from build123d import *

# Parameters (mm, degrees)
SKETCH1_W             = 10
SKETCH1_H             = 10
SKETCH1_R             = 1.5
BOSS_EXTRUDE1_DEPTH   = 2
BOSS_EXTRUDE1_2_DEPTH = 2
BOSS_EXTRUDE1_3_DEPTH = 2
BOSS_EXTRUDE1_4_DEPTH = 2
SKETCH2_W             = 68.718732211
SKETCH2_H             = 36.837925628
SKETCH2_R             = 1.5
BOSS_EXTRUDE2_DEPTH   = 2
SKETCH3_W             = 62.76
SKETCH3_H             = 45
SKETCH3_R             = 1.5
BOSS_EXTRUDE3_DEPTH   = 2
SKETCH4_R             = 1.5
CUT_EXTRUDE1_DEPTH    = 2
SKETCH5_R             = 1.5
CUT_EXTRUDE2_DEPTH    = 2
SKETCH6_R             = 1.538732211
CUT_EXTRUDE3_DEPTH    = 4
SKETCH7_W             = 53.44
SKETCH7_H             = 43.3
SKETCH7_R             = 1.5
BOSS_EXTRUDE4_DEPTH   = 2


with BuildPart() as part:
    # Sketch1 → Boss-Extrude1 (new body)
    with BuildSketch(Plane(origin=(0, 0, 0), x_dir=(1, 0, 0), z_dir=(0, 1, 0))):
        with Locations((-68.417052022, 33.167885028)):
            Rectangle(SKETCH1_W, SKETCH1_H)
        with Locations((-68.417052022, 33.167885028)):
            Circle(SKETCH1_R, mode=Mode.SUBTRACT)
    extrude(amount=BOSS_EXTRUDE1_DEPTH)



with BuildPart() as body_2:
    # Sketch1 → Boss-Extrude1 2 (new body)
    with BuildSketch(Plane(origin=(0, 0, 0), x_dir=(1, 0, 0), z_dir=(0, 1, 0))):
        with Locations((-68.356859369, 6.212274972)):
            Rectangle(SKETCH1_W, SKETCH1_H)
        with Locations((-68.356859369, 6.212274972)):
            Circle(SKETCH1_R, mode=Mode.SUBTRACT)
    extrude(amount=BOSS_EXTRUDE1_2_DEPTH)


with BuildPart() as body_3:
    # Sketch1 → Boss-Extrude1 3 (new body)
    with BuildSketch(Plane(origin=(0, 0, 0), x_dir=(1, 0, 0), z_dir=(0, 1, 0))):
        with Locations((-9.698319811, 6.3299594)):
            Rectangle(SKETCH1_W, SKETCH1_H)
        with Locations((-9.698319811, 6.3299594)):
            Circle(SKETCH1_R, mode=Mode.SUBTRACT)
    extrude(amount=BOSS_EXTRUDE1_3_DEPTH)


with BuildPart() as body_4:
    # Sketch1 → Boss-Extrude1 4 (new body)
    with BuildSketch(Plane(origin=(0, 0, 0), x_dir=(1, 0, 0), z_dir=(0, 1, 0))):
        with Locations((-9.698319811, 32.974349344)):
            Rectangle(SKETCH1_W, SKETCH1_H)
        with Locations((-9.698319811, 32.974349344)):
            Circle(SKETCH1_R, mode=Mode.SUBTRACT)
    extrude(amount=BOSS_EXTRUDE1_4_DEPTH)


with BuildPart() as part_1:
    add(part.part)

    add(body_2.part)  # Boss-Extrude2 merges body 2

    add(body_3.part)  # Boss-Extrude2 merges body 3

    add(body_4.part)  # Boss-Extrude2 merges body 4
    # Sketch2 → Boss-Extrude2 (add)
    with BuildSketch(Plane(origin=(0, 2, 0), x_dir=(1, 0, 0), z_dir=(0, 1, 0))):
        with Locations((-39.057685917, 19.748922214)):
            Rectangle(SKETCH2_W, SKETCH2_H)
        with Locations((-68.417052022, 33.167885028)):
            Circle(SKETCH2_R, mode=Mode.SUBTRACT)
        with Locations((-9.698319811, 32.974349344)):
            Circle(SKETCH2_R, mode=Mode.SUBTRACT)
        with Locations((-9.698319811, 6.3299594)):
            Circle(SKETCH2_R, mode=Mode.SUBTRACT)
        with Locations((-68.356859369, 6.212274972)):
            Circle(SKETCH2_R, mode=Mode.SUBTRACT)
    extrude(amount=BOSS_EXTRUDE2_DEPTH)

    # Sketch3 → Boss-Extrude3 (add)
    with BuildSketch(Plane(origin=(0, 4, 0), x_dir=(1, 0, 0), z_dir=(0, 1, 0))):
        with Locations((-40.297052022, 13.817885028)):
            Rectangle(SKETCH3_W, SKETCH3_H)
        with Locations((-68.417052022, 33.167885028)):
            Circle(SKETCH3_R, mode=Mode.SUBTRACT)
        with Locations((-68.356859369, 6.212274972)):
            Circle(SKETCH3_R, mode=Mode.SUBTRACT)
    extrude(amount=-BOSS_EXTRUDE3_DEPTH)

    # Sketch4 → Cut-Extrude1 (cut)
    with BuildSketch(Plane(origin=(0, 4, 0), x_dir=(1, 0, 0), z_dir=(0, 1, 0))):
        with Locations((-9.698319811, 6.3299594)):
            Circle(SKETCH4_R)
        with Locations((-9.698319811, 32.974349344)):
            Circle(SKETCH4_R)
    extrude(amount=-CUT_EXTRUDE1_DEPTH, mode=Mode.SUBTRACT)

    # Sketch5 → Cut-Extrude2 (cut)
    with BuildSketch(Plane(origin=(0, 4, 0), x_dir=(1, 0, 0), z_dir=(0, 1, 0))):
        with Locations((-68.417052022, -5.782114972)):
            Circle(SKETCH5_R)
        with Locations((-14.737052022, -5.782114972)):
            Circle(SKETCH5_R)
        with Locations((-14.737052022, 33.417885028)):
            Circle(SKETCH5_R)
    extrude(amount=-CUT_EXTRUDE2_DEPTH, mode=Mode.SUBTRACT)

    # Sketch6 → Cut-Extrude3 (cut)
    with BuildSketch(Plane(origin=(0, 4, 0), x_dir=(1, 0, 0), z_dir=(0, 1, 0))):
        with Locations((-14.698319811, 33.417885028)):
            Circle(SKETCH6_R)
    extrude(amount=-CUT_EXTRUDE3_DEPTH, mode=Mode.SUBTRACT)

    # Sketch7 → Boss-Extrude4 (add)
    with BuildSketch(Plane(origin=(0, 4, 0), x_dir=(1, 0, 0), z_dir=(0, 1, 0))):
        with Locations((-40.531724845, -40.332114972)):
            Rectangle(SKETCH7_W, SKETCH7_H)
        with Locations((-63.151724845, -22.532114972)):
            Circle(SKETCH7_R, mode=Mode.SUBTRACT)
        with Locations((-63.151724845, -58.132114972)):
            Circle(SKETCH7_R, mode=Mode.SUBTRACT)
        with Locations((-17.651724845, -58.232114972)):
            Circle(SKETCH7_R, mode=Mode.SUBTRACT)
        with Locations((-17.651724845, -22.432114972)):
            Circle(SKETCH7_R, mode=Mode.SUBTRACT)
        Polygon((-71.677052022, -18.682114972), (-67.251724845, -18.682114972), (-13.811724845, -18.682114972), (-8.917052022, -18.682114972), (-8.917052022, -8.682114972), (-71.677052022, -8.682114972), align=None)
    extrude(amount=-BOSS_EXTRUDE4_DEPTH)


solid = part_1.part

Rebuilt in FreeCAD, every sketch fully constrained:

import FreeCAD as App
import Part
import Sketcher
Q = App.Units.Quantity


def add_polygon(sketch, points):
    """Adds a closed chain of lines whose ends are joined by coincident constraints."""
    first, n = sketch.GeometryCount, len(points)
    for a, b in zip(points, points[1:] + points[:1]):
        sketch.addGeometry(Part.LineSegment(App.Vector(*a, 0), App.Vector(*b, 0)), False)
    for i in range(n):
        sketch.addConstraint(Sketcher.Constraint("Coincident", first + i, 2, first + (i + 1) % n, 1))

doc = App.newDocument("Part")
params = doc.addObject("Spreadsheet::Sheet", "Params")
for row, (alias, value) in enumerate([
    ("sketch1_diameter", "3 mm"),
    ("sketch1_width", "10 mm"),
    ("pad1_length", "2 mm"),
    ("sketch2_diameter", "3 mm"),
    ("sketch2_width", "10 mm"),
    ("pad2_length", "2 mm"),
    ("sketch3_diameter", "3 mm"),
    ("sketch3_width", "10 mm"),
    ("pad3_length", "2 mm"),
    ("sketch4_diameter", "3 mm"),
    ("sketch4_width", "10 mm"),
    ("pad4_length", "2 mm"),
    ("sketch5_diameter", "3 mm"),
    ("pad5_length", "2 mm"),
    ("sketch6_diameter", "3 mm"),
    ("sketch6_height", "45 mm"),
    ("sketch6_width", "62.76 mm"),
    ("pad6_length", "2 mm"),
    ("sketch7_diameter", "3 mm"),
    ("pocket1_length", "2 mm"),
    ("sketch8_diameter", "3 mm"),
    ("pocket2_length", "2 mm"),
    ("pocket3_length", "4 mm"),
    ("sketch10_diameter", "3 mm"),
    ("sketch10_height", "10 mm"),
    ("sketch10_height2", "43.3 mm"),
    ("sketch10_width", "53.44 mm"),
    ("sketch10_width2", "62.76 mm"),
    ("pad7_length", "2 mm"),
], start=1):
    params.set(f"A{row}", alias)
    params.set(f"B{row}", "=" + value)
    params.setAlias(f"B{row}", alias)

body = doc.addObject("PartDesign::Body", "Body")

sketch1 = doc.addObject("Sketcher::SketchObject", "Sketch")
body.addObject(sketch1)
sketch1.AttachmentSupport = (doc.XZ_Plane, [""])
sketch1.MapMode = "FlatFace"
add_polygon(sketch1, [(-73.4, -38.2), (-73.4, -28.2), (-63.4, -28.2), (-63.4, -38.2)])
sketch1.addGeometry(Part.Circle(App.Vector(-68.4, -33.2, 0), App.Vector(0, 0, 1), 1.5), False)
sketch1.addConstraint(Sketcher.Constraint("Vertical", 0))
sketch1.addConstraint(Sketcher.Constraint("Horizontal", 1))
sketch1.addConstraint(Sketcher.Constraint("Vertical", 2))
sketch1.addConstraint(Sketcher.Constraint("Horizontal", 3))
sketch1.addConstraint(Sketcher.Constraint("Equal", 3, 0))
sketch1.addConstraint(Sketcher.Constraint("Diameter", 4, Q("3 mm")))
sketch1.addConstraint(Sketcher.Constraint("DistanceX", 1, 1, 1, 2, Q("10 mm")))
sketch1.addConstraint(Sketcher.Constraint("DistanceX", 0, 2, 4, 3, Q("5 mm")))
sketch1.addConstraint(Sketcher.Constraint("DistanceY", 4, 3, 0, 2, Q("5 mm")))
sketch1.addConstraint(Sketcher.Constraint("DistanceX", 4, 3, -1, 1, Q("68.417052 mm")))
sketch1.addConstraint(Sketcher.Constraint("DistanceY", 4, 3, -1, 1, Q("33.167885 mm")))
sketch1.setExpression("Constraints[9]", "Params.sketch1_diameter")
sketch1.setExpression("Constraints[10]", "Params.sketch1_width")
pad1 = doc.addObject("PartDesign::Pad", "Pad")
body.addObject(pad1)
pad1.Profile = sketch1
pad1.setExpression("Length", "Params.pad1_length")
pad1.Reversed = True
body2 = doc.addObject("PartDesign::Body", "Body001")

sketch2 = doc.addObject("Sketcher::SketchObject", "Sketch001")
body2.addObject(sketch2)
sketch2.AttachmentSupport = (doc.getObject("XZ_Plane001"), [""])
sketch2.MapMode = "FlatFace"
add_polygon(sketch2, [(-73.4, -11.2), (-73.4, -1.2), (-63.4, -1.2), (-63.4, -11.2)])
sketch2.addGeometry(Part.Circle(App.Vector(-68.4, -6.2, 0), App.Vector(0, 0, 1), 1.5), False)
sketch2.addConstraint(Sketcher.Constraint("Vertical", 0))
sketch2.addConstraint(Sketcher.Constraint("Horizontal", 1))
sketch2.addConstraint(Sketcher.Constraint("Vertical", 2))
sketch2.addConstraint(Sketcher.Constraint("Horizontal", 3))
sketch2.addConstraint(Sketcher.Constraint("Equal", 3, 0))
sketch2.addConstraint(Sketcher.Constraint("Diameter", 4, Q("3 mm")))
sketch2.addConstraint(Sketcher.Constraint("DistanceX", 1, 1, 1, 2, Q("10 mm")))
sketch2.addConstraint(Sketcher.Constraint("DistanceX", 0, 2, 4, 3, Q("5 mm")))
sketch2.addConstraint(Sketcher.Constraint("DistanceY", 4, 3, 0, 2, Q("5 mm")))
sketch2.addConstraint(Sketcher.Constraint("DistanceX", 4, 3, -1, 1, Q("68.356859 mm")))
sketch2.addConstraint(Sketcher.Constraint("DistanceY", 4, 3, -1, 1, Q("6.212275 mm")))
sketch2.setExpression("Constraints[9]", "Params.sketch2_diameter")
sketch2.setExpression("Constraints[10]", "Params.sketch2_width")
pad2 = doc.addObject("PartDesign::Pad", "Pad001")
body2.addObject(pad2)
pad2.Profile = sketch2
pad2.setExpression("Length", "Params.pad2_length")
pad2.Reversed = True
body3 = doc.addObject("PartDesign::Body", "Body002")

sketch3 = doc.addObject("Sketcher::SketchObject", "Sketch002")
body3.addObject(sketch3)
sketch3.AttachmentSupport = (doc.getObject("XZ_Plane002"), [""])
sketch3.MapMode = "FlatFace"
add_polygon(sketch3, [(-14.7, -11.3), (-14.7, -1.3), (-4.7, -1.3), (-4.7, -11.3)])
sketch3.addGeometry(Part.Circle(App.Vector(-9.7, -6.3, 0), App.Vector(0, 0, 1), 1.5), False)
sketch3.addConstraint(Sketcher.Constraint("Vertical", 0))
sketch3.addConstraint(Sketcher.Constraint("Horizontal", 1))
sketch3.addConstraint(Sketcher.Constraint("Vertical", 2))
sketch3.addConstraint(Sketcher.Constraint("Horizontal", 3))
sketch3.addConstraint(Sketcher.Constraint("Equal", 3, 0))
sketch3.addConstraint(Sketcher.Constraint("Diameter", 4, Q("3 mm")))
sketch3.addConstraint(Sketcher.Constraint("DistanceX", 1, 1, 1, 2, Q("10 mm")))
sketch3.addConstraint(Sketcher.Constraint("DistanceX", 0, 2, 4, 3, Q("5 mm")))
sketch3.addConstraint(Sketcher.Constraint("DistanceY", 4, 3, 0, 2, Q("5 mm")))
sketch3.addConstraint(Sketcher.Constraint("DistanceX", 4, 3, -1, 1, Q("9.69832 mm")))
sketch3.addConstraint(Sketcher.Constraint("DistanceY", 4, 3, -1, 1, Q("6.329959 mm")))
sketch3.setExpression("Constraints[9]", "Params.sketch3_diameter")
sketch3.setExpression("Constraints[10]", "Params.sketch3_width")
pad3 = doc.addObject("PartDesign::Pad", "Pad002")
body3.addObject(pad3)
pad3.Profile = sketch3
pad3.setExpression("Length", "Params.pad3_length")
pad3.Reversed = True
body4 = doc.addObject("PartDesign::Body", "Body003")

sketch4 = doc.addObject("Sketcher::SketchObject", "Sketch003")
body4.addObject(sketch4)
sketch4.AttachmentSupport = (doc.getObject("XZ_Plane003"), [""])
sketch4.MapMode = "FlatFace"
add_polygon(sketch4, [(-14.7, -38), (-14.7, -28), (-4.7, -28), (-4.7, -38)])
sketch4.addGeometry(Part.Circle(App.Vector(-9.7, -33, 0), App.Vector(0, 0, 1), 1.5), False)
sketch4.addConstraint(Sketcher.Constraint("Vertical", 0))
sketch4.addConstraint(Sketcher.Constraint("Horizontal", 1))
sketch4.addConstraint(Sketcher.Constraint("Vertical", 2))
sketch4.addConstraint(Sketcher.Constraint("Horizontal", 3))
sketch4.addConstraint(Sketcher.Constraint("Equal", 3, 0))
sketch4.addConstraint(Sketcher.Constraint("Diameter", 4, Q("3 mm")))
sketch4.addConstraint(Sketcher.Constraint("DistanceX", 1, 1, 1, 2, Q("10 mm")))
sketch4.addConstraint(Sketcher.Constraint("DistanceX", 0, 2, 4, 3, Q("5 mm")))
sketch4.addConstraint(Sketcher.Constraint("DistanceY", 4, 3, 0, 2, Q("5 mm")))
sketch4.addConstraint(Sketcher.Constraint("DistanceX", 4, 3, -1, 1, Q("9.69832 mm")))
sketch4.addConstraint(Sketcher.Constraint("DistanceY", 4, 3, -1, 1, Q("32.974349 mm")))
sketch4.setExpression("Constraints[9]", "Params.sketch4_diameter")
sketch4.setExpression("Constraints[10]", "Params.sketch4_width")
pad4 = doc.addObject("PartDesign::Pad", "Pad003")
body4.addObject(pad4)
pad4.Profile = sketch4
pad4.setExpression("Length", "Params.pad4_length")
pad4.Reversed = True
body.AllowCompound = True
doc.recompute()

boolean = doc.addObject("PartDesign::Boolean", "Boolean")
body.addObject(boolean)
boolean.Type = "Fuse"
boolean.addObjects([body2])
doc.recompute()

boolean2 = doc.addObject("PartDesign::Boolean", "Boolean001")
body.addObject(boolean2)
boolean2.Type = "Fuse"
boolean2.addObjects([body3])
doc.recompute()

boolean3 = doc.addObject("PartDesign::Boolean", "Boolean002")
body.addObject(boolean3)
boolean3.Type = "Fuse"
boolean3.addObjects([body4])

sketch5 = doc.addObject("Sketcher::SketchObject", "Sketch004")
body.addObject(sketch5)
sketch5.AttachmentSupport = (doc.XZ_Plane, [""])
sketch5.MapMode = "FlatFace"
sketch5.AttachmentOffset = App.Placement(App.Vector(0, 0, -2), App.Rotation())
add_polygon(sketch5, [(-73.4, -38.2), (-73.4, -1.3), (-4.7, -1.3), (-4.7, -38.2)])
sketch5.addGeometry(Part.Circle(App.Vector(-68.4, -6.2, 0), App.Vector(0, 0, 1), 1.5), False)
sketch5.addGeometry(Part.Circle(App.Vector(-9.7, -6.3, 0), App.Vector(0, 0, 1), 1.5), False)
sketch5.addGeometry(Part.Circle(App.Vector(-68.4, -33.2, 0), App.Vector(0, 0, 1), 1.5), False)
sketch5.addGeometry(Part.Circle(App.Vector(-9.7, -33, 0), App.Vector(0, 0, 1), 1.5), False)
sketch5.addConstraint(Sketcher.Constraint("Vertical", 0))
sketch5.addConstraint(Sketcher.Constraint("Horizontal", 1))
sketch5.addConstraint(Sketcher.Constraint("Vertical", 2))
sketch5.addConstraint(Sketcher.Constraint("Horizontal", 3))
sketch5.addConstraint(Sketcher.Constraint("Equal", 4, 5))
sketch5.addConstraint(Sketcher.Constraint("Equal", 5, 6))
sketch5.addConstraint(Sketcher.Constraint("Equal", 6, 7))
sketch5.addConstraint(Sketcher.Constraint("Vertical", 5, 3, 7, 3))
sketch5.addConstraint(Sketcher.Constraint("Diameter", 4, Q("3 mm")))
sketch5.addConstraint(Sketcher.Constraint("DistanceX", 0, 2, 6, 3, Q("5 mm")))
sketch5.addConstraint(Sketcher.Constraint("DistanceY", 5, 3, 0, 2, Q("5 mm")))
sketch5.addConstraint(Sketcher.Constraint("DistanceX", 5, 3, 1, 2, Q("5 mm")))
sketch5.addConstraint(Sketcher.Constraint("DistanceY", 2, 2, 6, 3, Q("5 mm")))
sketch5.addConstraint(Sketcher.Constraint("DistanceX", 1, 1, 1, 2, Q("68.718732 mm")))
sketch5.addConstraint(Sketcher.Constraint("DistanceY", 0, 1, 0, 2, Q("36.837926 mm")))
sketch5.addConstraint(Sketcher.Constraint("DistanceX", 4, 3, -1, 1, Q("68.356859 mm")))
sketch5.addConstraint(Sketcher.Constraint("DistanceX", 5, 3, -1, 1, Q("9.69832 mm")))
sketch5.addConstraint(Sketcher.Constraint("DistanceY", 5, 3, -1, 1, Q("6.329959 mm")))
sketch5.addConstraint(Sketcher.Constraint("DistanceY", 7, 3, -1, 1, Q("32.974349 mm")))
sketch5.addConstraint(Sketcher.Constraint("DistanceY", 6, 3, 4, 3, Q("26.95561 mm")))
sketch5.setExpression("Constraints[12]", "Params.sketch5_diameter")
pad5 = doc.addObject("PartDesign::Pad", "Pad004")
body.addObject(pad5)
pad5.Profile = sketch5
pad5.setExpression("Length", "Params.pad5_length")
pad5.Reversed = True

sketch6 = doc.addObject("Sketcher::SketchObject", "Sketch005")
body.addObject(sketch6)
sketch6.AttachmentSupport = (doc.XZ_Plane, [""])
sketch6.MapMode = "FlatFace"
sketch6.AttachmentOffset = App.Placement(App.Vector(0, 0, -4), App.Rotation())
add_polygon(sketch6, [(-71.7, -36.3), (-71.7, 8.7), (-8.9, 8.7), (-8.9, -36.3)])
sketch6.addGeometry(Part.Circle(App.Vector(-68.4, -6.2, 0), App.Vector(0, 0, 1), 1.5), False)
sketch6.addGeometry(Part.Circle(App.Vector(-68.4, -33.2, 0), App.Vector(0, 0, 1), 1.5), False)
sketch6.addConstraint(Sketcher.Constraint("Vertical", 0))
sketch6.addConstraint(Sketcher.Constraint("Horizontal", 1))
sketch6.addConstraint(Sketcher.Constraint("Vertical", 2))
sketch6.addConstraint(Sketcher.Constraint("Horizontal", 3))
sketch6.addConstraint(Sketcher.Constraint("Equal", 4, 5))
sketch6.addConstraint(Sketcher.Constraint("Diameter", 4, Q("3 mm")))
sketch6.addConstraint(Sketcher.Constraint("DistanceY", 0, 1, 0, 2, Q("45 mm")))
sketch6.addConstraint(Sketcher.Constraint("DistanceX", 1, 1, 1, 2, Q("62.76 mm")))
sketch6.addConstraint(Sketcher.Constraint("DistanceX", 5, 3, 1, 2, Q("59.5 mm")))
sketch6.addConstraint(Sketcher.Constraint("DistanceY", 5, 3, 0, 2, Q("41.85 mm")))
sketch6.addConstraint(Sketcher.Constraint("DistanceX", 4, 3, -1, 1, Q("68.356859 mm")))
sketch6.addConstraint(Sketcher.Constraint("DistanceY", 5, 3, 4, 3, Q("26.95561 mm")))
sketch6.addConstraint(Sketcher.Constraint("DistanceY", 4, 3, -1, 1, Q("6.212275 mm")))
sketch6.addConstraint(Sketcher.Constraint("DistanceX", 5, 3, -1, 1, Q("68.417052 mm")))
sketch6.setExpression("Constraints[9]", "Params.sketch6_diameter")
sketch6.setExpression("Constraints[10]", "Params.sketch6_height")
sketch6.setExpression("Constraints[11]", "Params.sketch6_width")
pad6 = doc.addObject("PartDesign::Pad", "Pad005")
body.addObject(pad6)
pad6.Profile = sketch6
pad6.setExpression("Length", "Params.pad6_length")

sketch7 = doc.addObject("Sketcher::SketchObject", "Sketch006")
body.addObject(sketch7)
sketch7.AttachmentSupport = (doc.XZ_Plane, [""])
sketch7.MapMode = "FlatFace"
sketch7.AttachmentOffset = App.Placement(App.Vector(0, 0, -4), App.Rotation())
sketch7.addGeometry(Part.Circle(App.Vector(-9.7, -6.3, 0), App.Vector(0, 0, 1), 1.5), False)
sketch7.addGeometry(Part.Circle(App.Vector(-9.7, -33, 0), App.Vector(0, 0, 1), 1.5), False)
sketch7.addConstraint(Sketcher.Constraint("Equal", 0, 1))
sketch7.addConstraint(Sketcher.Constraint("Vertical", 0, 3, 1, 3))
sketch7.addConstraint(Sketcher.Constraint("Diameter", 0, Q("3 mm")))
sketch7.addConstraint(Sketcher.Constraint("DistanceX", 0, 3, -1, 1, Q("9.69832 mm")))
sketch7.addConstraint(Sketcher.Constraint("DistanceY", 0, 3, -1, 1, Q("6.329959 mm")))
sketch7.addConstraint(Sketcher.Constraint("DistanceY", 1, 3, -1, 1, Q("32.974349 mm")))
sketch7.setExpression("Constraints[2]", "Params.sketch7_diameter")
pocket1 = doc.addObject("PartDesign::Pocket", "Pocket")
body.addObject(pocket1)
pocket1.Profile = sketch7
pocket1.setExpression("Length", "Params.pocket1_length")
pocket1.Reversed = True

sketch8 = doc.addObject("Sketcher::SketchObject", "Sketch007")
body.addObject(sketch8)
sketch8.AttachmentSupport = (doc.XZ_Plane, [""])
sketch8.MapMode = "FlatFace"
sketch8.AttachmentOffset = App.Placement(App.Vector(0, 0, -4), App.Rotation())
sketch8.addGeometry(Part.Circle(App.Vector(-68.4, 5.8, 0), App.Vector(0, 0, 1), 1.5), False)
sketch8.addGeometry(Part.Circle(App.Vector(-14.7, 5.8, 0), App.Vector(0, 0, 1), 1.5), False)
sketch8.addGeometry(Part.Circle(App.Vector(-14.7, -33.4, 0), App.Vector(0, 0, 1), 1.5), False)
sketch8.addConstraint(Sketcher.Constraint("Equal", 0, 1))
sketch8.addConstraint(Sketcher.Constraint("Equal", 1, 2))
sketch8.addConstraint(Sketcher.Constraint("Horizontal", 0, 3, 1, 3))
sketch8.addConstraint(Sketcher.Constraint("Vertical", 1, 3, 2, 3))
sketch8.addConstraint(Sketcher.Constraint("Diameter", 0, Q("3 mm")))
sketch8.addConstraint(Sketcher.Constraint("DistanceY", 2, 3, 1, 3, Q("39.2 mm")))
sketch8.addConstraint(Sketcher.Constraint("DistanceX", 0, 3, 1, 3, Q("53.68 mm")))
sketch8.addConstraint(Sketcher.Constraint("DistanceX", 0, 3, -1, 1, Q("68.417052 mm")))
sketch8.addConstraint(Sketcher.Constraint("DistanceY", -1, 1, 0, 3, Q("5.782115 mm")))
sketch8.setExpression("Constraints[4]", "Params.sketch8_diameter")
pocket2 = doc.addObject("PartDesign::Pocket", "Pocket001")
body.addObject(pocket2)
pocket2.Profile = sketch8
pocket2.setExpression("Length", "Params.pocket2_length")
pocket2.Reversed = True

sketch9 = doc.addObject("Sketcher::SketchObject", "Sketch008")
body.addObject(sketch9)
sketch9.AttachmentSupport = (doc.XZ_Plane, [""])
sketch9.MapMode = "FlatFace"
sketch9.AttachmentOffset = App.Placement(App.Vector(0, 0, -4), App.Rotation())
sketch9.addGeometry(Part.Circle(App.Vector(-14.7, -33.4, 0), App.Vector(0, 0, 1), 1.5), False)
sketch9.addConstraint(Sketcher.Constraint("Diameter", 0, Q("3.077464 mm")))
sketch9.addConstraint(Sketcher.Constraint("DistanceX", 0, 3, -1, 1, Q("14.69832 mm")))
sketch9.addConstraint(Sketcher.Constraint("DistanceY", 0, 3, -1, 1, Q("33.417885 mm")))
pocket3 = doc.addObject("PartDesign::Pocket", "Pocket002")
body.addObject(pocket3)
pocket3.Profile = sketch9
pocket3.setExpression("Length", "Params.pocket3_length")
pocket3.Reversed = True

sketch10 = doc.addObject("Sketcher::SketchObject", "Sketch009")
body.addObject(sketch10)
sketch10.AttachmentSupport = (doc.XZ_Plane, [""])
sketch10.MapMode = "FlatFace"
sketch10.AttachmentOffset = App.Placement(App.Vector(0, 0, -4), App.Rotation())
add_polygon(sketch10, [(-67.3, 18.7), (-67.3, 62), (-13.8, 62), (-13.8, 18.7), (-8.9, 18.7), (-8.9, 8.7), (-71.7, 8.7), (-71.7, 18.7)])
sketch10.addGeometry(Part.Circle(App.Vector(-63.2, 58.1, 0), App.Vector(0, 0, 1), 1.5), False)
sketch10.addGeometry(Part.Circle(App.Vector(-17.7, 58.2, 0), App.Vector(0, 0, 1), 1.5), False)
sketch10.addGeometry(Part.Circle(App.Vector(-63.2, 22.5, 0), App.Vector(0, 0, 1), 1.5), False)
sketch10.addGeometry(Part.Circle(App.Vector(-17.7, 22.4, 0), App.Vector(0, 0, 1), 1.5), False)
sketch10.addConstraint(Sketcher.Constraint("Vertical", 0))
sketch10.addConstraint(Sketcher.Constraint("Horizontal", 1))
sketch10.addConstraint(Sketcher.Constraint("Vertical", 2))
sketch10.addConstraint(Sketcher.Constraint("Horizontal", 3))
sketch10.addConstraint(Sketcher.Constraint("Vertical", 4))
sketch10.addConstraint(Sketcher.Constraint("Horizontal", 5))
sketch10.addConstraint(Sketcher.Constraint("Vertical", 6))
sketch10.addConstraint(Sketcher.Constraint("Horizontal", 7))
sketch10.addConstraint(Sketcher.Constraint("Equal", 8, 9))
sketch10.addConstraint(Sketcher.Constraint("Equal", 9, 10))
sketch10.addConstraint(Sketcher.Constraint("Equal", 10, 11))
sketch10.addConstraint(Sketcher.Constraint("Horizontal", 3, 2, 6, 2))
sketch10.addConstraint(Sketcher.Constraint("Vertical", 8, 3, 10, 3))
sketch10.addConstraint(Sketcher.Constraint("Vertical", 9, 3, 11, 3))
sketch10.addConstraint(Sketcher.Constraint("Diameter", 8, Q("3 mm")))
sketch10.addConstraint(Sketcher.Constraint("DistanceY", 4, 2, 4, 1, Q("10 mm")))
sketch10.addConstraint(Sketcher.Constraint("DistanceY", 0, 1, 0, 2, Q("43.3 mm")))
sketch10.addConstraint(Sketcher.Constraint("DistanceX", 1, 1, 1, 2, Q("53.44 mm")))
sketch10.addConstraint(Sketcher.Constraint("DistanceX", 5, 2, 5, 1, Q("62.76 mm")))
sketch10.addConstraint(Sketcher.Constraint("DistanceX", 8, 3, 9, 3, Q("45.5 mm")))
sketch10.addConstraint(Sketcher.Constraint("DistanceY", 8, 3, 9, 3, Q("0.1 mm")))
sketch10.addConstraint(Sketcher.Constraint("DistanceY", 10, 3, 8, 3, Q("35.6 mm")))
sketch10.addConstraint(Sketcher.Constraint("DistanceY", 11, 3, 9, 3, Q("35.8 mm")))
sketch10.addConstraint(Sketcher.Constraint("DistanceX", 0, 2, 8, 3, Q("4.1 mm")))
sketch10.addConstraint(Sketcher.Constraint("DistanceY", 8, 3, 0, 2, Q("3.85 mm")))
sketch10.addConstraint(Sketcher.Constraint("DistanceX", 3, 1, 3, 2, Q("4.894673 mm")))
sketch10.addConstraint(Sketcher.Constraint("DistanceX", 8, 3, -1, 1, Q("63.151725 mm")))
sketch10.addConstraint(Sketcher.Constraint("DistanceY", -1, 1, 8, 3, Q("58.132115 mm")))
sketch10.setExpression("Constraints[22]", "Params.sketch10_diameter")
sketch10.setExpression("Constraints[23]", "Params.sketch10_height")
sketch10.setExpression("Constraints[24]", "Params.sketch10_height2")
sketch10.setExpression("Constraints[25]", "Params.sketch10_width")
sketch10.setExpression("Constraints[26]", "Params.sketch10_width2")
pad7 = doc.addObject("PartDesign::Pad", "Pad006")
body.addObject(pad7)
pad7.Profile = sketch10
pad7.setExpression("Length", "Params.pad7_length")

doc.recompute()
